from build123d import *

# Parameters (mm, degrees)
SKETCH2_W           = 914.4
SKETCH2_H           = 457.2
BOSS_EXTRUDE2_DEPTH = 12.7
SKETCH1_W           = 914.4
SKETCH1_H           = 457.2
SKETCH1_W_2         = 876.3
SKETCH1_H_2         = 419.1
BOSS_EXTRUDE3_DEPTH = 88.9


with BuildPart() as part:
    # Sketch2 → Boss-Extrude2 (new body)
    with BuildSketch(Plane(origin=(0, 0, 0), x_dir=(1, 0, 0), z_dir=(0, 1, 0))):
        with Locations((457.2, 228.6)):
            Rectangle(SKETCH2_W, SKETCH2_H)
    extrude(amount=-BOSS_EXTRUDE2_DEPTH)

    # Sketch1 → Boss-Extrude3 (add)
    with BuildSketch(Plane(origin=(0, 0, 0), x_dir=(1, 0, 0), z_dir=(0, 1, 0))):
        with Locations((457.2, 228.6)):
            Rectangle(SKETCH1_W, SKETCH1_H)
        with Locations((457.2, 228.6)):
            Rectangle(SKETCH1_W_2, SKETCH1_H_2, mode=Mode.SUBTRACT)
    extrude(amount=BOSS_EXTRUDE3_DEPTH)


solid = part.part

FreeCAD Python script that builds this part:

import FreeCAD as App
import Part
import Sketcher

V = App.Vector
Q = App.Units.Quantity

doc = App.newDocument("Part")
body = doc.addObject("PartDesign::Body", "Body")

sketch1 = doc.addObject("Sketcher::SketchObject", "Sketch")
body.addObject(sketch1)
sketch1.AttachmentSupport = (doc.XZ_Plane, [""])
sketch1.MapMode = "FlatFace"
sketch1.addGeometry(Part.LineSegment(V(0, -457, 0), V(0, 0, 0)), False)
sketch1.addGeometry(Part.LineSegment(V(0, 0, 0), V(914, 0, 0)), False)
sketch1.addGeometry(Part.LineSegment(V(914, 0, 0), V(914, -457, 0)), False)
sketch1.addGeometry(Part.LineSegment(V(914, -457, 0), V(0, -457, 0)), False)
sketch1.addConstraint(Sketcher.Constraint("Coincident", 0, 2, 1, 1))
sketch1.addConstraint(Sketcher.Constraint("Coincident", 1, 2, 2, 1))
sketch1.addConstraint(Sketcher.Constraint("Coincident", 2, 2, 3, 1))
sketch1.addConstraint(Sketcher.Constraint("Coincident", 3, 2, 0, 1))
sketch1.addConstraint(Sketcher.Constraint("Vertical", 0))
sketch1.addConstraint(Sketcher.Constraint("Horizontal", 1))
sketch1.addConstraint(Sketcher.Constraint("Vertical", 2))
sketch1.addConstraint(Sketcher.Constraint("Horizontal", 3))
sketch1.addConstraint(Sketcher.Constraint("Coincident", 0, 2, -1, 1))
sketch1.addConstraint(Sketcher.Constraint("DistanceX", 1, 1, 1, 2, Q("36 in")))
sketch1.addConstraint(Sketcher.Constraint("DistanceY", 0, 1, 0, 2, Q("18 in")))
pad1 = doc.addObject("PartDesign::Pad", "Pad")
body.addObject(pad1)
pad1.Profile = sketch1
pad1.Length = Q("0.5 in")

sketch2 = doc.addObject("Sketcher::SketchObject", "Sketch001")
body.addObject(sketch2)
sketch2.AttachmentSupport = (doc.XZ_Plane, [""])
sketch2.MapMode = "FlatFace"
sketch2.addGeometry(Part.LineSegment(V(0, -457, 0), V(0, 0, 0)), False)
sketch2.addGeometry(Part.LineSegment(V(0, 0, 0), V(914, 0, 0)), False)
sketch2.addGeometry(Part.LineSegment(V(914, 0, 0), V(914, -457, 0)), False)
sketch2.addGeometry(Part.LineSegment(V(914, -457, 0), V(0, -457, 0)), False)
sketch2.addGeometry(Part.LineSegment(V(895, -19, 0), V(19, -19, 0)), False)
sketch2.addGeometry(Part.LineSegment(V(19, -19, 0), V(19, -438, 0)), False)
sketch2.addGeometry(Part.LineSegment(V(19, -438, 0), V(895, -438, 0)), False)
sketch2.addGeometry(Part.LineSegment(V(895, -438, 0), V(895, -19, 0)), False)
sketch2.addConstraint(Sketcher.Constraint("Coincident", 0, 2, 1, 1))
sketch2.addConstraint(Sketcher.Constraint("Coincident", 1, 2, 2, 1))
sketch2.addConstraint(Sketcher.Constraint("Coincident", 2, 2, 3, 1))
sketch2.addConstraint(Sketcher.Constraint("Coincident", 3, 2, 0, 1))
sketch2.addConstraint(Sketcher.Constraint("Coincident", 4, 2, 5, 1))
sketch2.addConstraint(Sketcher.Constraint("Coincident", 5, 2, 6, 1))
sketch2.addConstraint(Sketcher.Constraint("Coincident", 6, 2, 7, 1))
sketch2.addConstraint(Sketcher.Constraint("Coincident", 7, 2, 4, 1))
sketch2.addConstraint(Sketcher.Constraint("Vertical", 0))
sketch2.addConstraint(Sketcher.Constraint("Horizontal", 1))
sketch2.addConstraint(Sketcher.Constraint("Vertical", 2))
sketch2.addConstraint(Sketcher.Constraint("Horizontal", 3))
sketch2.addConstraint(Sketcher.Constraint("Horizontal", 4))
sketch2.addConstraint(Sketcher.Constraint("Vertical", 5))
sketch2.addConstraint(Sketcher.Constraint("Horizontal", 6))
sketch2.addConstraint(Sketcher.Constraint("Vertical", 7))
sketch2.addConstraint(Sketcher.Constraint("Coincident", 0, 2, -1, 1))
sketch2.addConstraint(Sketcher.Constraint("DistanceX", 1, 1, 1, 2, Q("36 in")))
sketch2.addConstraint(Sketcher.Constraint("DistanceY", 0, 1, 0, 2, Q("18 in")))
sketch2.addConstraint(Sketcher.Constraint("DistanceX", 4, 2, 4, 1, Q("34.5 in")))
sketch2.addConstraint(Sketcher.Constraint("DistanceY", 5, 2, 5, 1, Q("16.5 in")))
sketch2.addConstraint(Sketcher.Constraint("DistanceX", -1, 1, 4, 2, Q("0.75 in")))
sketch2.addConstraint(Sketcher.Constraint("DistanceY", 4, 2, -1, 1, Q("0.75 in")))
pad2 = doc.addObject("PartDesign::Pad", "Pad001")
body.addObject(pad2)
pad2.Profile = sketch2
pad2.Length = Q("3.5 in")
pad2.Reversed = True

doc.recompute()
